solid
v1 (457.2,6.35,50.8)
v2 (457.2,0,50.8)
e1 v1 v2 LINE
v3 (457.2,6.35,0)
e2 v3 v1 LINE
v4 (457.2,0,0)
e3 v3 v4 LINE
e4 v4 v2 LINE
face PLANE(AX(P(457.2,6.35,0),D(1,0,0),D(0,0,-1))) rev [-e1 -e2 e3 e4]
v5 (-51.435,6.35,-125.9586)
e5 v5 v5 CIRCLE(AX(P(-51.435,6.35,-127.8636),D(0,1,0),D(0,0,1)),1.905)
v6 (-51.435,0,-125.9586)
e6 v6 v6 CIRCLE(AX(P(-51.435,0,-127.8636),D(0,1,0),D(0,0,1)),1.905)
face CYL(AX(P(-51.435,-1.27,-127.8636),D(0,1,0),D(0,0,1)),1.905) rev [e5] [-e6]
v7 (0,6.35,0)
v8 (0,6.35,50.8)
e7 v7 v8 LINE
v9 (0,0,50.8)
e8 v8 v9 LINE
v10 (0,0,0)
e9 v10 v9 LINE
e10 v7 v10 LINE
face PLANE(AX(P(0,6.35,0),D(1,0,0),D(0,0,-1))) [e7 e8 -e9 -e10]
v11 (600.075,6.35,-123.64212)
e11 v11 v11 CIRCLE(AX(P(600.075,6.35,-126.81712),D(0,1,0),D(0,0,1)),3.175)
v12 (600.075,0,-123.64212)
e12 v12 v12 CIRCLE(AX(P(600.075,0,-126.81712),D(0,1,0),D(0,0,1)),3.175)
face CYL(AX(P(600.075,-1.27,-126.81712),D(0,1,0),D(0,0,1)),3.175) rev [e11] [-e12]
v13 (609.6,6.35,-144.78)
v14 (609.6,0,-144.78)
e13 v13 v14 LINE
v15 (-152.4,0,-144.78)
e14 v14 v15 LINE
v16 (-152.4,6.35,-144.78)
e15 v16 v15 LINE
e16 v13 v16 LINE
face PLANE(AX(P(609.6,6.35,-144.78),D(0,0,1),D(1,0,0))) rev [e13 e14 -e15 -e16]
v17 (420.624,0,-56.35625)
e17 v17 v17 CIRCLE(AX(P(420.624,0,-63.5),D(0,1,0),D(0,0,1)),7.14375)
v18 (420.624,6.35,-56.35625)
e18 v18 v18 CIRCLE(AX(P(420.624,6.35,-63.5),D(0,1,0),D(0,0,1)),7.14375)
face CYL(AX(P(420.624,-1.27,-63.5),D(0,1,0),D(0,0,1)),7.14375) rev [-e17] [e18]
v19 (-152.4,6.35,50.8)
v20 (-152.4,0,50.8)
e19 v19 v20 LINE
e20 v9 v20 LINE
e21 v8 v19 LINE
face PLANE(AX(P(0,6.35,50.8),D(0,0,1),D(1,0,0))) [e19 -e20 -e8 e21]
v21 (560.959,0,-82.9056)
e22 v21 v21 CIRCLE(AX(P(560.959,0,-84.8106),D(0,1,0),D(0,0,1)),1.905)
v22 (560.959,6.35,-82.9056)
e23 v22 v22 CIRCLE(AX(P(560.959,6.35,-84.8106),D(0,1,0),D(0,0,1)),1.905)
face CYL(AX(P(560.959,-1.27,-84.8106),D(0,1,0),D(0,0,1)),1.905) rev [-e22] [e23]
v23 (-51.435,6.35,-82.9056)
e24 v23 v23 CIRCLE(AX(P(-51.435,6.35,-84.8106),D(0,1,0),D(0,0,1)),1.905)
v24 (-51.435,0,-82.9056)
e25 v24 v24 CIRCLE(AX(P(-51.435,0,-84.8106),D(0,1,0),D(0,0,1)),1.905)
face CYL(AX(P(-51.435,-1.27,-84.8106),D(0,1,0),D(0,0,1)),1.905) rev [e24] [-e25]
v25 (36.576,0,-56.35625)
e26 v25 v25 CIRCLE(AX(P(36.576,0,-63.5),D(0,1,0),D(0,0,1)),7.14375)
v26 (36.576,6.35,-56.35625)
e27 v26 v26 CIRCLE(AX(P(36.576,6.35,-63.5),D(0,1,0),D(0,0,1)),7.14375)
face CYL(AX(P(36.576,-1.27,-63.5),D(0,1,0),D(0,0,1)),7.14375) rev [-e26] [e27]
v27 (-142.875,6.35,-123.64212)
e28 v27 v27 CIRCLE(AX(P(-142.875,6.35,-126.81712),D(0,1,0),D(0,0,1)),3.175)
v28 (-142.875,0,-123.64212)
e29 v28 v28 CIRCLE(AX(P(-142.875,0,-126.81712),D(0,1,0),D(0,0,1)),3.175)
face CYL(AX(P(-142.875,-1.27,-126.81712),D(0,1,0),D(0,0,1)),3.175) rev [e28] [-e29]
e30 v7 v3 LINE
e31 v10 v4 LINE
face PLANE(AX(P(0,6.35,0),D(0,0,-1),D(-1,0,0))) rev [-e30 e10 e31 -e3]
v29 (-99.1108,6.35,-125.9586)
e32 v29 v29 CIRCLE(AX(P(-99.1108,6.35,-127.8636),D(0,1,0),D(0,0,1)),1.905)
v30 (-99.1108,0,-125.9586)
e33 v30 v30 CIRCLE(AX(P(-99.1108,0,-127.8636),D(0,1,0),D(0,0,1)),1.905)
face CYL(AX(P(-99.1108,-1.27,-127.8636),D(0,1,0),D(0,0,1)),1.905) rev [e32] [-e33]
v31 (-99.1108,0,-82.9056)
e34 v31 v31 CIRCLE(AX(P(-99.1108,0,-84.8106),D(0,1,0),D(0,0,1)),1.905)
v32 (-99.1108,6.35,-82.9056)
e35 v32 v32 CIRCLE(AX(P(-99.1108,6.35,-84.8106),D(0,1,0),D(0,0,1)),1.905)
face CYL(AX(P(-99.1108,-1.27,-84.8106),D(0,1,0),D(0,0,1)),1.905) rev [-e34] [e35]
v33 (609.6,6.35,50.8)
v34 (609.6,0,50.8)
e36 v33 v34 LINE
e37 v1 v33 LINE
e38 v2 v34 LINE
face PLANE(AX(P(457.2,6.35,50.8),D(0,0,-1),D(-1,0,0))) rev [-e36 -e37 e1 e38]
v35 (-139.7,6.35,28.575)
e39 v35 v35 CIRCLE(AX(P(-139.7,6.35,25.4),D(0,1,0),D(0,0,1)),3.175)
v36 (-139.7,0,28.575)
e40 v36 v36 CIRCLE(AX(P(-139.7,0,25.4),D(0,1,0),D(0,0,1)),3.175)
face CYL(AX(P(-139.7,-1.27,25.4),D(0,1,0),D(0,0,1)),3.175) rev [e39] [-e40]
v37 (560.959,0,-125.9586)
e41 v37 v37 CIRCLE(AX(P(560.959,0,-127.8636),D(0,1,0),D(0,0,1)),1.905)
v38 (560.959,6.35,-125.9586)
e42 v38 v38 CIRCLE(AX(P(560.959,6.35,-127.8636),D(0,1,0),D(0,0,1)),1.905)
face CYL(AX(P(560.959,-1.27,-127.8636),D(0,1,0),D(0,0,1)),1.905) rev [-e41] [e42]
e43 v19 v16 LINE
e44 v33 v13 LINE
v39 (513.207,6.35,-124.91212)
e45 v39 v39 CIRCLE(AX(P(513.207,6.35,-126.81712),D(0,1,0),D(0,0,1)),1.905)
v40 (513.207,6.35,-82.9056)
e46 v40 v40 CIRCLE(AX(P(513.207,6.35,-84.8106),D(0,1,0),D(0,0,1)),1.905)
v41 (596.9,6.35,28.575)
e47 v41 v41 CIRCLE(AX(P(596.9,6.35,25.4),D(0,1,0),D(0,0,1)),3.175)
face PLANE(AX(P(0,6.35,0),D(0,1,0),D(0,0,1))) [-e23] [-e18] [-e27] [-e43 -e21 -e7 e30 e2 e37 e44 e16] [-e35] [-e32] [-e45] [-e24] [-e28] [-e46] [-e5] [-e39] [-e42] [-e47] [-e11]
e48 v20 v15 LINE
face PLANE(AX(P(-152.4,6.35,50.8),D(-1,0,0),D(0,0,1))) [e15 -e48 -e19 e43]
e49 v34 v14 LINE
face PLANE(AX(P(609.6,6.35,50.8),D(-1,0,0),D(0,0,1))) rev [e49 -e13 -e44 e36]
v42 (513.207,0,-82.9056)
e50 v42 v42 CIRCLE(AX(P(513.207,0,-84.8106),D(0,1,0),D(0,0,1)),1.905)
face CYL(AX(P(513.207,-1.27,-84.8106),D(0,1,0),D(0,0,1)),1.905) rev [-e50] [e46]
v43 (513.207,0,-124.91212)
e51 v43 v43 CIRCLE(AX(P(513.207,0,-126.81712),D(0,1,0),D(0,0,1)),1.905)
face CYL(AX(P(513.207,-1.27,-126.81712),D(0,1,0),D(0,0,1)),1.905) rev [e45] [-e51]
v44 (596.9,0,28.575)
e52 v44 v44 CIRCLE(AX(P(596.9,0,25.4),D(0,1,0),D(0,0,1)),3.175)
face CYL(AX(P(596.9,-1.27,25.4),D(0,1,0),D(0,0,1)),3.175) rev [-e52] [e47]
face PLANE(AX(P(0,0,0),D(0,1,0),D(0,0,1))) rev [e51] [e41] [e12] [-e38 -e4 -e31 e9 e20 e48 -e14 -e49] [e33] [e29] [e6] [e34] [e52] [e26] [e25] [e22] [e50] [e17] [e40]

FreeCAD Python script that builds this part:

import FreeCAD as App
import Part
import Sketcher

V = App.Vector
Q = App.Units.Quantity

doc = App.newDocument("Part")
body = doc.addObject("PartDesign::Body", "Body")

# Sketch on XZ plane
sketch1 = body.newObject("Sketcher::SketchObject", "Sketch")
sketch1.AttachmentSupport = (doc.getObject("XZ_Plane"), [""])
sketch1.MapMode = "FlatFace"
sketch1.addGeometry(Part.LineSegment(V(0, 0, 0), V(457.2, 0, 0)), False)
sketch1.addGeometry(Part.LineSegment(V(457.2, 0, 0), V(457.2, 50.8, 0)), False)
sketch1.addGeometry(Part.LineSegment(V(457.2, 50.8, 0), V(609.6, 50.8, 0)), False)
sketch1.addGeometry(Part.LineSegment(V(609.6, 50.8, 0), V(609.6, -144.78, 0)), False)
sketch1.addGeometry(Part.LineSegment(V(609.6, -144.78, 0), V(-152.4, -144.78, 0)), False)
sketch1.addGeometry(Part.LineSegment(V(-152.4, -144.78, 0), V(-152.4, 50.8, 0)), False)
sketch1.addGeometry(Part.LineSegment(V(-152.4, 50.8, 0), V(0, 50.8, 0)), False)
sketch1.addGeometry(Part.LineSegment(V(0, 50.8, 0), V(0, 0, 0)), False)
sketch1.addConstraint(Sketcher.Constraint("Coincident", 0, 2, 1, 1))
sketch1.addConstraint(Sketcher.Constraint("Coincident", 1, 2, 2, 1))
sketch1.addConstraint(Sketcher.Constraint("Coincident", 2, 2, 3, 1))
sketch1.addConstraint(Sketcher.Constraint("Coincident", 3, 2, 4, 1))
sketch1.addConstraint(Sketcher.Constraint("Coincident", 4, 2, 5, 1))
sketch1.addConstraint(Sketcher.Constraint("Coincident", 5, 2, 6, 1))
sketch1.addConstraint(Sketcher.Constraint("Coincident", 6, 2, 7, 1))
sketch1.addConstraint(Sketcher.Constraint("Coincident", 7, 2, 0, 1))
sketch1.addConstraint(Sketcher.Constraint("Horizontal", 0))
sketch1.addConstraint(Sketcher.Constraint("Vertical", 1))
sketch1.addConstraint(Sketcher.Constraint("Horizontal", 2))
sketch1.addConstraint(Sketcher.Constraint("Vertical", 3))
sketch1.addConstraint(Sketcher.Constraint("Horizontal", 4))
sketch1.addConstraint(Sketcher.Constraint("Vertical", 5))
sketch1.addConstraint(Sketcher.Constraint("Horizontal", 6))
sketch1.addConstraint(Sketcher.Constraint("Vertical", 7))
sketch1.addConstraint(Sketcher.Constraint("Coincident", 7, 2, -1, 1))
sketch1.addConstraint(Sketcher.Constraint("Horizontal", 2, 2, 5, 2))
sketch1.addConstraint(Sketcher.Constraint("Equal", 2, 6))
sketch1.addConstraint(Sketcher.Constraint("DistanceX", 0, 1, 0, 2, Q("18 in")))
sketch1.addConstraint(Sketcher.Constraint("DistanceX", 2, 1, 2, 2, Q("6 in")))
sketch1.addConstraint(Sketcher.Constraint("DistanceY", 1, 1, 1, 2, Q("2 in")))
sketch1.addConstraint(Sketcher.Constraint("DistanceY", 3, 2, 3, 1, Q("7.7 in")))
pad1 = body.newObject("PartDesign::Pad", "Pad")
pad1.Profile = sketch1
pad1.Length = Q("0.25 in")
pad1.Reversed = True

# Sketch on XZ plane
sketch2 = body.newObject("Sketcher::SketchObject", "Sketch001")
sketch2.AttachmentSupport = (doc.getObject("XZ_Plane"), [""])
sketch2.MapMode = "FlatFace"
sketch2.AttachmentOffset = App.Placement(V(0, 0, -0.25 * 25.4), App.Rotation())
sketch2.addGeometry(Part.Circle(V(-139.7, 25.4, 0), V(0, 0, 1), 3.175), False)
sketch2.addGeometry(Part.Circle(V(-99.1108, -84.8106, 0), V(0, 0, 1), 1.905), False)
sketch2.addGeometry(Part.Circle(V(-142.875, -126.81712, 0), V(0, 0, 1), 3.175), False)
sketch2.addGeometry(Part.Circle(V(-51.435, -84.8106, 0), V(0, 0, 1), 1.905), False)
sketch2.addGeometry(Part.Circle(V(-51.435, -127.8636, 0), V(0, 0, 1), 1.905), False)
sketch2.addGeometry(Part.Circle(V(36.576, -63.5, 0), V(0, 0, 1), 7.14375), False)
sketch2.addGeometry(Part.Circle(V(600.075, -126.81712, 0), V(0, 0, 1), 3.175), False)
sketch2.addGeometry(Part.Circle(V(596.9, 25.4, 0), V(0, 0, 1), 3.175), False)
sketch2.addGeometry(Part.Circle(V(560.959, -127.8636, 0), V(0, 0, 1), 1.905), False)
sketch2.addGeometry(Part.Circle(V(513.207, -84.8106, 0), V(0, 0, 1), 1.905), False)
sketch2.addGeometry(Part.Circle(V(560.959, -84.8106, 0), V(0, 0, 1), 1.905), False)
sketch2.addGeometry(Part.Circle(V(513.207, -126.81712, 0), V(0, 0, 1), 1.905), False)
sketch2.addGeometry(Part.Circle(V(420.624, -63.5, 0), V(0, 0, 1), 7.14375), False)
sketch2.addGeometry(Part.Circle(V(-99.1108, -127.8636, 0), V(0, 0, 1), 1.905), False)
sketch2.addConstraint(Sketcher.Constraint("Equal", 0, 2))
sketch2.addConstraint(Sketcher.Constraint("Equal", 1, 3))
sketch2.addConstraint(Sketcher.Constraint("Equal", 3, 4))
sketch2.addConstraint(Sketcher.Constraint("Equal", 2, 6))
sketch2.addConstraint(Sketcher.Constraint("Equal", 6, 7))
sketch2.addConstraint(Sketcher.Constraint("Equal", 4, 8))
sketch2.addConstraint(Sketcher.Constraint("Equal", 8, 9))
sketch2.addConstraint(Sketcher.Constraint("Equal", 9, 10))
sketch2.addConstraint(Sketcher.Constraint("Equal", 10, 11))
sketch2.addConstraint(Sketcher.Constraint("Equal", 5, 12))
sketch2.addConstraint(Sketcher.Constraint("Equal", 11, 13))
sketch2.addConstraint(Sketcher.Constraint("Horizontal", 1, 3, 3, 3))
sketch2.addConstraint(Sketcher.Constraint("Horizontal", 2, 3, 6, 3))
sketch2.addConstraint(Sketcher.Constraint("Horizontal", 0, 3, 7, 3))
sketch2.addConstraint(Sketcher.Constraint("Horizontal", 4, 3, 8, 3))
sketch2.addConstraint(Sketcher.Constraint("Horizontal", 3, 3, 9, 3))
sketch2.addConstraint(Sketcher.Constraint("Horizontal", 9, 3, 10, 3))
sketch2.addConstraint(Sketcher.Constraint("Horizontal", 6, 3, 11, 3))
sketch2.addConstraint(Sketcher.Constraint("Horizontal", 5, 3, 12, 3))
sketch2.addConstraint(Sketcher.Constraint("Horizontal", 8, 3, 13, 3))
sketch2.addConstraint(Sketcher.Constraint("Vertical", 3, 3, 4, 3))
sketch2.addConstraint(Sketcher.Constraint("Vertical", 8, 3, 10, 3))
sketch2.addConstraint(Sketcher.Constraint("Vertical", 9, 3, 11, 3))
sketch2.addConstraint(Sketcher.Constraint("Vertical", 1, 3, 13, 3))
sketch2.addConstraint(Sketcher.Constraint("Diameter", 0, Q("0.25 in")))
sketch2.addConstraint(Sketcher.Constraint("Diameter", 1, Q("0.15 in")))
sketch2.addConstraint(Sketcher.Constraint("Diameter", 5, Q("0.5625 in")))
sketch2.addConstraint(Sketcher.Constraint("DistanceY", -1, 1, 0, 3, Q("1 in")))
sketch2.addConstraint(Sketcher.Constraint("DistanceX", 0, 3, -1, 1, Q("5.5 in")))
sketch2.addConstraint(Sketcher.Constraint("DistanceY", 5, 3, -1, 1, Q("2.5 in")))
sketch2.addConstraint(Sketcher.Constraint("DistanceX", -1, 1, 7, 3, Q("23.5 in")))
sketch2.addConstraint(Sketcher.Constraint("DistanceX", 2, 3, 3, 3, Q("3.6 in")))
sketch2.addConstraint(Sketcher.Constraint("DistanceX", -1, 1, 5, 3, Q("1.44 in")))
sketch2.addConstraint(Sketcher.Constraint("DistanceX", -1, 1, 12, 3, Q("16.56 in")))
sketch2.addConstraint(Sketcher.Constraint("DistanceX", 4, 3, 6, 3, Q("25.65 in")))
sketch2.addConstraint(Sketcher.Constraint("DistanceX", 8, 3, 6, 3, Q("1.54 in")))
sketch2.addConstraint(Sketcher.Constraint("DistanceX", 9, 3, 8, 3, Q("1.88 in")))
sketch2.addConstraint(Sketcher.Constraint("DistanceX", 1, 3, -1, 1, Q("3.902 in")))
sketch2.addConstraint(Sketcher.Constraint("DistanceY", 1, 3, -1, 1, Q("3.339 in")))
sketch2.addConstraint(Sketcher.Constraint("DistanceX", 2, 3, -1, 1, Q("5.625 in")))
sketch2.addConstraint(Sketcher.Constraint("DistanceY", 4, 3, -1, 1, Q("5.034 in")))
sketch2.addConstraint(Sketcher.Constraint("DistanceY", 2, 3, -1, 1, Q("4.9928 in")))
pocket1 = body.newObject("PartDesign::Pocket", "Pocket")
pocket1.Profile = sketch2
pocket1.Length = Q("0.3 in")
pocket1.Reversed = True

doc.recompute()
